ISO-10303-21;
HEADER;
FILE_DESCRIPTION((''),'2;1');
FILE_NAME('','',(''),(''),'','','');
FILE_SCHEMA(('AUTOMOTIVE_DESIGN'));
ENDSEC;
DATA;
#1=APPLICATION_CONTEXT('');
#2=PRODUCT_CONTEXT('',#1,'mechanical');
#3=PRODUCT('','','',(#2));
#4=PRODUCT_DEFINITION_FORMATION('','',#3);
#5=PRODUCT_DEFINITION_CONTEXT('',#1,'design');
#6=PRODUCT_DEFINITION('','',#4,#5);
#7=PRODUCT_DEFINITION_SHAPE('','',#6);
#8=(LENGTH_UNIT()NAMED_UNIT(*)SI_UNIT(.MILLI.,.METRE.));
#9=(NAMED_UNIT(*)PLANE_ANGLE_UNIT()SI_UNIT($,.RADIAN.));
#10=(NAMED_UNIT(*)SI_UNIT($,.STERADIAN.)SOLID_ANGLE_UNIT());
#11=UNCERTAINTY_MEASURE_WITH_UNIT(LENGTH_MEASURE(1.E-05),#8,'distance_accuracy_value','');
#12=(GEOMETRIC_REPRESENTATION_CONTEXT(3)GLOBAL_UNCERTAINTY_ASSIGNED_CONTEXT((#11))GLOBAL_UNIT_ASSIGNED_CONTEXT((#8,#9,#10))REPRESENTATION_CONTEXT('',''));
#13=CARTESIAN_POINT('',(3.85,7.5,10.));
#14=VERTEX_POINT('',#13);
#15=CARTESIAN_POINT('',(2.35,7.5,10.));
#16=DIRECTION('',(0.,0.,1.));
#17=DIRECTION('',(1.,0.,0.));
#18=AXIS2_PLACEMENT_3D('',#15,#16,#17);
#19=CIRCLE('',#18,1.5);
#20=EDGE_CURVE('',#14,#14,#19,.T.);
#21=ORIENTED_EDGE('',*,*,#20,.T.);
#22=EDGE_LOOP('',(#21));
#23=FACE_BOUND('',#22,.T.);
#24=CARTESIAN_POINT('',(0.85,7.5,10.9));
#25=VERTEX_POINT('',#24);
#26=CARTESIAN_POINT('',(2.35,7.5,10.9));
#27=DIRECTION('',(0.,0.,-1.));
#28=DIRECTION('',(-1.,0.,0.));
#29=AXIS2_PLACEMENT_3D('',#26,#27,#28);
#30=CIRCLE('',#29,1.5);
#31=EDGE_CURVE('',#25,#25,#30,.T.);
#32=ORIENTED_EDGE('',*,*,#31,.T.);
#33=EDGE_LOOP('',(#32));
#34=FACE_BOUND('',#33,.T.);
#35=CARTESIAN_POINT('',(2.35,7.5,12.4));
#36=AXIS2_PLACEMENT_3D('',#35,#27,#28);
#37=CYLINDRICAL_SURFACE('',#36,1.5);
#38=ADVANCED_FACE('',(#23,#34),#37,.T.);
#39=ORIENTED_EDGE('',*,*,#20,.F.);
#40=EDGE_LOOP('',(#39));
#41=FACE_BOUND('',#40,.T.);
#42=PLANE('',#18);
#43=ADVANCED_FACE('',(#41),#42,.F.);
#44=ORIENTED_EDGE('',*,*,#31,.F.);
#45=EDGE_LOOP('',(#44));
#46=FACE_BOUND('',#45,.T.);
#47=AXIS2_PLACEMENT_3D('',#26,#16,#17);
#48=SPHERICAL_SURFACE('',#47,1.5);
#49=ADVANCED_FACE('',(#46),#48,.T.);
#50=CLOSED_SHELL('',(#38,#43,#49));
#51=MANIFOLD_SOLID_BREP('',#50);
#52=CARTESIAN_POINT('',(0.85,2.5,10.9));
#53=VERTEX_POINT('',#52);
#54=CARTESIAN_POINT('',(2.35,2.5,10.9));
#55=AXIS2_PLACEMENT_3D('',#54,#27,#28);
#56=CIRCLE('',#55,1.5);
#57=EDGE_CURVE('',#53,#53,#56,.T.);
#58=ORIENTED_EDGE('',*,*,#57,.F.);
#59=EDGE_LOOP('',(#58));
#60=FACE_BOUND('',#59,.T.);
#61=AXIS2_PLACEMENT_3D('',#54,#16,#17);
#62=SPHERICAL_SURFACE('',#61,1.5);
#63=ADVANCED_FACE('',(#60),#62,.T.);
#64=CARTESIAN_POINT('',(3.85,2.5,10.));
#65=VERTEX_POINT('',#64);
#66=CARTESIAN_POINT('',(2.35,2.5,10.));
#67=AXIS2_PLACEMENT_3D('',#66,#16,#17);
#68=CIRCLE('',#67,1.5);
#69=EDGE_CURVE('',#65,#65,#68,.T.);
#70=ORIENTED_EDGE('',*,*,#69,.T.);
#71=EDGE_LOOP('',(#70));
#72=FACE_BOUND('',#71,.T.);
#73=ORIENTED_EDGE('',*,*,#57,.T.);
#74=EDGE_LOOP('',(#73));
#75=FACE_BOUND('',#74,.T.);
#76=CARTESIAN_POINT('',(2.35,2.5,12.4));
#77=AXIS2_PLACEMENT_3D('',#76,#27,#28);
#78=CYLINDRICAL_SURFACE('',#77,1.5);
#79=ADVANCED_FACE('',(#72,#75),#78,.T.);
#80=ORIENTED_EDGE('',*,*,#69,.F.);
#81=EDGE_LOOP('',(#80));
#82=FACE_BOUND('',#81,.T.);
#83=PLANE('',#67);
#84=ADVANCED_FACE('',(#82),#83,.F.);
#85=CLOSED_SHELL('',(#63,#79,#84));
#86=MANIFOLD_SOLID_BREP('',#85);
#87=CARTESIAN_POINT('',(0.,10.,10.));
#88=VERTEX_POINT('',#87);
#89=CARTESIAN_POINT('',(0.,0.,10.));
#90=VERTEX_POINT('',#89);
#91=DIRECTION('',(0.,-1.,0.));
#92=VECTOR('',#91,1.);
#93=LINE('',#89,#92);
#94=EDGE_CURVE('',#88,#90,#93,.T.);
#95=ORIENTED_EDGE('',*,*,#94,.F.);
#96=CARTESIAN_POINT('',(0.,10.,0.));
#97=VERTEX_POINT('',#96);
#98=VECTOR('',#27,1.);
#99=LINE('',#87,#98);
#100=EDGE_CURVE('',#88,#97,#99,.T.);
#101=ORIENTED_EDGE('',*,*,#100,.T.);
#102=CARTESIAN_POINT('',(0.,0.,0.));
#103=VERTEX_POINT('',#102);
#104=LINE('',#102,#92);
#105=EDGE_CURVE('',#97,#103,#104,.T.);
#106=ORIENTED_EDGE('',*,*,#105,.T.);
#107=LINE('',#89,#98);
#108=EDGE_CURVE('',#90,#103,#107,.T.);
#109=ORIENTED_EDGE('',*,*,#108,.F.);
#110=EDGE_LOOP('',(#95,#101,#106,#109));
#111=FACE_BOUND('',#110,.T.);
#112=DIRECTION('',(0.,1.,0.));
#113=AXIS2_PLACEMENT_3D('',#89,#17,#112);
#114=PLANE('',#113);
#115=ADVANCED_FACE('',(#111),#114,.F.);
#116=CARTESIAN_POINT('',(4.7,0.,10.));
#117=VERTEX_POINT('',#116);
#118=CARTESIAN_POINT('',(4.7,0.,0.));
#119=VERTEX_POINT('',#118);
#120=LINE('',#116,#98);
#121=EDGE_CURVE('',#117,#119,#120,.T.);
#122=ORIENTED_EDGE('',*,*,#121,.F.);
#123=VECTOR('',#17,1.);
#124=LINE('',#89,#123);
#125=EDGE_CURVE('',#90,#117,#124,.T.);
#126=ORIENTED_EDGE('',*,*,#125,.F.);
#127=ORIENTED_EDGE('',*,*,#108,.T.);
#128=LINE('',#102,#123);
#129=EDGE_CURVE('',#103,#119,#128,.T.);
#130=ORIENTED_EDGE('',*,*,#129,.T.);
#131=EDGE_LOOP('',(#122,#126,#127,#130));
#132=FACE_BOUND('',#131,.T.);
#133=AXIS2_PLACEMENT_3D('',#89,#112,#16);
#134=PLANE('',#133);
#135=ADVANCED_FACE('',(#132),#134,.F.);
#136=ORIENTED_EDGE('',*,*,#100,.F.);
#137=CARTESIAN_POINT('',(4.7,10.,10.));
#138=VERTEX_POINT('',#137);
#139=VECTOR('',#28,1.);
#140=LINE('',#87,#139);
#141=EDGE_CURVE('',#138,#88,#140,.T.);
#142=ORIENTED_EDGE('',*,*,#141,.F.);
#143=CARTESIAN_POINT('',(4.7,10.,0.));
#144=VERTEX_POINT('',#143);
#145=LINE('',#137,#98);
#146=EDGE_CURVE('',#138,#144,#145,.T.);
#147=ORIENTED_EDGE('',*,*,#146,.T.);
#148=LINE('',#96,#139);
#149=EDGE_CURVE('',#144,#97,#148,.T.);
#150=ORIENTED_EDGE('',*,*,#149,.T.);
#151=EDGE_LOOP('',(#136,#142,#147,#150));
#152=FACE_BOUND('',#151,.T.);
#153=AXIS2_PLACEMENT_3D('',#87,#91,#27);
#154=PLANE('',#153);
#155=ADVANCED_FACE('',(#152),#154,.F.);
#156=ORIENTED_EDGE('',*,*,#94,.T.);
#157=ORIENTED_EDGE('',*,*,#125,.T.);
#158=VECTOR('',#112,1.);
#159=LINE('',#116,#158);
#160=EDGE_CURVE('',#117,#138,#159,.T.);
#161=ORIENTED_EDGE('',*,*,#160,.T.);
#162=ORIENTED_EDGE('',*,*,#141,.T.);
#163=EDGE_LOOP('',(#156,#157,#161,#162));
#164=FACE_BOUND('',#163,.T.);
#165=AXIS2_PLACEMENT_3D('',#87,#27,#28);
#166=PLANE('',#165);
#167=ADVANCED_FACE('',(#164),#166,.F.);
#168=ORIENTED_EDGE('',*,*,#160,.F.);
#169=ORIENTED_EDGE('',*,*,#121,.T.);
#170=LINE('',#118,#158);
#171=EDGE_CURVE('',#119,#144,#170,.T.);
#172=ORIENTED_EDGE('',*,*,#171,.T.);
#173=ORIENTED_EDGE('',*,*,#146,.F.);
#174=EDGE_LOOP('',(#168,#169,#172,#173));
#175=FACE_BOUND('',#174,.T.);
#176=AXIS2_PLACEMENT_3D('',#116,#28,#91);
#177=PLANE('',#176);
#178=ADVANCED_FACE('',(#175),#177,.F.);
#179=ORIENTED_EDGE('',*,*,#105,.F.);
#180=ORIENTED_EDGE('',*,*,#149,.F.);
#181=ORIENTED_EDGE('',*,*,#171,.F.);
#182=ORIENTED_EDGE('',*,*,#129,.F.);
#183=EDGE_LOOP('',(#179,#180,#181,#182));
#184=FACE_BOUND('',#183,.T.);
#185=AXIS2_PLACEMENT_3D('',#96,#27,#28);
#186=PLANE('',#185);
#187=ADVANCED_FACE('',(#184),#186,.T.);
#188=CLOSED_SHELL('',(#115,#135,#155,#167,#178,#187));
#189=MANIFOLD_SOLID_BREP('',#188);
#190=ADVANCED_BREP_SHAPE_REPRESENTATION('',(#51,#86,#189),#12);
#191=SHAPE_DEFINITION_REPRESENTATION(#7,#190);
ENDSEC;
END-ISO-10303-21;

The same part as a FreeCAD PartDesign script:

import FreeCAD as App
import Part
import Sketcher
from FreeCAD import Vector
Q = App.Units.Quantity


def edges_at(feature, points):
    """Names of the edges that pass closest to the given points."""
    edges = feature.Shape.Edges
    near = lambda p: min(range(len(edges)), key=lambda i: edges[i].distToShape(Part.Vertex(*p))[0])
    return sorted({f"Edge{near(p) + 1}" for p in points})


def add_polygon(sketch, points):
    """Adds a closed chain of lines whose ends are joined by coincident constraints."""
    first, n = sketch.GeometryCount, len(points)
    for a, b in zip(points, points[1:] + points[:1]):
        sketch.addGeometry(Part.LineSegment(App.Vector(*a, 0), App.Vector(*b, 0)), False)
    for i in range(n):
        sketch.addConstraint(Sketcher.Constraint("Coincident", first + i, 2, first + (i + 1) % n, 1))

doc = App.newDocument("Part")
body = doc.addObject("PartDesign::Body", "Body")

# Sketch on XY plane
sketch1 = doc.addObject("Sketcher::SketchObject", "Sketch")
body.addObject(sketch1)
sketch1.AttachmentSupport = (doc.XY_Plane, [""])
sketch1.MapMode = "FlatFace"
add_polygon(sketch1, [(0, 10), (0, 0), (4.7, 0), (4.7, 10)])  # lines 0-3
sketch1.addConstraint([
    Sketcher.Constraint("Vertical", 0),
    Sketcher.Constraint("Horizontal", 1),
    Sketcher.Constraint("Vertical", 2),
    Sketcher.Constraint("Horizontal", 3),
    Sketcher.Constraint("Coincident", 0, 2, -1, 1),
    Sketcher.Constraint("DistanceY", 0, 2, 0, 1, Q("10 mm")),
    Sketcher.Constraint("DistanceX", 1, 1, 1, 2, Q("4.7 mm")),
])
pad1 = doc.addObject("PartDesign::Pad", "Pad")
body.addObject(pad1)
pad1.Profile = sketch1
pad1.Length = 10
body2 = doc.addObject("PartDesign::Body", "Body001")

# Sketch on XY plane
sketch2 = doc.addObject("Sketcher::SketchObject", "Sketch001")
body2.addObject(sketch2)
sketch2.AttachmentSupport = (doc.getObject("XY_Plane001"), [""])
sketch2.MapMode = "FlatFace"
sketch2.AttachmentOffset = App.Placement(Vector(0, 0, 10), App.Rotation())
sketch2.addGeometry(Part.Circle(Vector(2.35, 7.5, 0), Vector(0, 0, 1), 1.5), False)
sketch2.addConstraint([
    Sketcher.Constraint("Diameter", 0, Q("3 mm")),
    Sketcher.Constraint("DistanceY", -1, 1, 0, 3, Q("7.5 mm")),
    Sketcher.Constraint("DistanceX", -1, 1, 0, 3, Q("2.35 mm")),
])
pad2 = doc.addObject("PartDesign::Pad", "Pad001")
body2.addObject(pad2)
pad2.Profile = sketch2
pad2.Length = 2.4
doc.recompute()

fillet = doc.addObject("PartDesign::Fillet", "Fillet")
body2.addObject(fillet)
fillet.Base = (pad2, edges_at(pad2, [(0.85, 7.5, 12.4)]))
fillet.Radius = 1.5
body3 = doc.addObject("PartDesign::Body", "Body002")

# Sketch on XY plane
sketch3 = doc.addObject("Sketcher::SketchObject", "Sketch002")
body3.addObject(sketch3)
sketch3.AttachmentSupport = (doc.getObject("XY_Plane002"), [""])
sketch3.MapMode = "FlatFace"
sketch3.AttachmentOffset = App.Placement(Vector(0, 0, 10), App.Rotation())
sketch3.addGeometry(Part.Circle(Vector(2.35, 2.5, 0), Vector(0, 0, 1), 1.5), False)
sketch3.addConstraint([
    Sketcher.Constraint("Diameter", 0, Q("3 mm")),
    Sketcher.Constraint("DistanceY", -1, 1, 0, 3, Q("2.5 mm")),
    Sketcher.Constraint("DistanceX", -1, 1, 0, 3, Q("2.35 mm")),
])
pad3 = doc.addObject("PartDesign::Pad", "Pad002")
body3.addObject(pad3)
pad3.Profile = sketch3
pad3.Length = 2.4
doc.recompute()

fillet2 = doc.addObject("PartDesign::Fillet", "Fillet001")
body3.addObject(fillet2)
fillet2.Base = (pad3, edges_at(pad3, [(0.85, 2.5, 12.4)]))
fillet2.Radius = 1.5

doc.recompute()
